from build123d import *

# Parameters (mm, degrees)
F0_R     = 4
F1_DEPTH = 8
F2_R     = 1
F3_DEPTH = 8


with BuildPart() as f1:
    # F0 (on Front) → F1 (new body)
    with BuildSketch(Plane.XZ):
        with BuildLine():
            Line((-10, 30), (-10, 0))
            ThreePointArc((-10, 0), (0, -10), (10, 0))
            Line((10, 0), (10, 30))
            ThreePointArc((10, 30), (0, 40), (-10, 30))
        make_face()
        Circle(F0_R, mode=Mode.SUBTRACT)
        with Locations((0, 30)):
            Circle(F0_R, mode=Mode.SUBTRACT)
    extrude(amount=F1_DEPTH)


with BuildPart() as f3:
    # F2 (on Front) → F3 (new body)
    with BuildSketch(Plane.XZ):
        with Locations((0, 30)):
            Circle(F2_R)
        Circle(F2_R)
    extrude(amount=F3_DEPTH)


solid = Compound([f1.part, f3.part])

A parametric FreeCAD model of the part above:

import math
import FreeCAD as App
import Part
import Sketcher
Q = App.Units.Quantity

doc = App.newDocument("Part")
body = doc.addObject("PartDesign::Body", "Body")

sketch1 = body.newObject("Sketcher::SketchObject", "Sketch")
sketch1.AttachmentSupport = (doc.getObject("XZ_Plane"), [""])
sketch1.MapMode = "FlatFace"
sketch1.addGeometry(Part.LineSegment(App.Vector(-10, 30, 0), App.Vector(-10, 0, 0)), False)
sketch1.addGeometry(Part.ArcOfCircle(Part.Circle(App.Vector(0, 0, 0), App.Vector(0, 0, 1), 10), math.radians(180), math.radians(360)), False)
sketch1.addGeometry(Part.LineSegment(App.Vector(10, 0, 0), App.Vector(10, 30, 0)), False)
sketch1.addGeometry(Part.ArcOfCircle(Part.Circle(App.Vector(0, 30, 0), App.Vector(0, 0, 1), 10), math.radians(0), math.radians(180)), False)
sketch1.addGeometry(Part.Circle(App.Vector(0, 0, 0), App.Vector(0, 0, 1), 4), False)
sketch1.addGeometry(Part.Circle(App.Vector(0, 30, 0), App.Vector(0, 0, 1), 4), False)
sketch1.addConstraint(Sketcher.Constraint("Tangent", 0, 2, 1, 1))
sketch1.addConstraint(Sketcher.Constraint("Tangent", 1, 2, 2, 1))
sketch1.addConstraint(Sketcher.Constraint("Tangent", 2, 2, 3, 1))
sketch1.addConstraint(Sketcher.Constraint("Tangent", 3, 2, 0, 1))
sketch1.addConstraint(Sketcher.Constraint("Vertical", 0))
sketch1.addConstraint(Sketcher.Constraint("Vertical", 2))
sketch1.addConstraint(Sketcher.Constraint("Coincident", 1, 3, -1, 1))
sketch1.addConstraint(Sketcher.Constraint("Coincident", 4, 3, -1, 1))
sketch1.addConstraint(Sketcher.Constraint("Coincident", 5, 3, 3, 3))
sketch1.addConstraint(Sketcher.Constraint("Equal", 4, 5))
sketch1.addConstraint(Sketcher.Constraint("Diameter", 4, Q("8 mm")))
sketch1.addConstraint(Sketcher.Constraint("Radius", 1, Q("10 mm")))
sketch1.addConstraint(Sketcher.Constraint("DistanceY", 0, 2, 0, 1, Q("30 mm")))
pad1 = body.newObject("PartDesign::Pad", "Pad")
pad1.Profile = sketch1
pad1.Length = 8
body2 = doc.addObject("PartDesign::Body", "Body001")
body2.AllowCompound = True

sketch2 = body2.newObject("Sketcher::SketchObject", "Sketch001")
sketch2.AttachmentSupport = (doc.getObject("XZ_Plane001"), [""])
sketch2.MapMode = "FlatFace"
sketch2.addGeometry(Part.Circle(App.Vector(0, 30, 0), App.Vector(0, 0, 1), 1), False)
sketch2.addGeometry(Part.Circle(App.Vector(0, 0, 0), App.Vector(0, 0, 1), 1), False)
sketch2.addConstraint(Sketcher.Constraint("Coincident", 1, 3, -1, 1))
sketch2.addConstraint(Sketcher.Constraint("Equal", 0, 1))
sketch2.addConstraint(Sketcher.Constraint("PointOnObject", 0, 3, -2))
sketch2.addConstraint(Sketcher.Constraint("Diameter", 0, Q("2 mm")))
sketch2.addConstraint(Sketcher.Constraint("DistanceY", -1, 1, 0, 3, Q("30 mm")))
pad2 = body2.newObject("PartDesign::Pad", "Pad001")
pad2.Profile = sketch2
pad2.Length = 8

doc.recompute()
